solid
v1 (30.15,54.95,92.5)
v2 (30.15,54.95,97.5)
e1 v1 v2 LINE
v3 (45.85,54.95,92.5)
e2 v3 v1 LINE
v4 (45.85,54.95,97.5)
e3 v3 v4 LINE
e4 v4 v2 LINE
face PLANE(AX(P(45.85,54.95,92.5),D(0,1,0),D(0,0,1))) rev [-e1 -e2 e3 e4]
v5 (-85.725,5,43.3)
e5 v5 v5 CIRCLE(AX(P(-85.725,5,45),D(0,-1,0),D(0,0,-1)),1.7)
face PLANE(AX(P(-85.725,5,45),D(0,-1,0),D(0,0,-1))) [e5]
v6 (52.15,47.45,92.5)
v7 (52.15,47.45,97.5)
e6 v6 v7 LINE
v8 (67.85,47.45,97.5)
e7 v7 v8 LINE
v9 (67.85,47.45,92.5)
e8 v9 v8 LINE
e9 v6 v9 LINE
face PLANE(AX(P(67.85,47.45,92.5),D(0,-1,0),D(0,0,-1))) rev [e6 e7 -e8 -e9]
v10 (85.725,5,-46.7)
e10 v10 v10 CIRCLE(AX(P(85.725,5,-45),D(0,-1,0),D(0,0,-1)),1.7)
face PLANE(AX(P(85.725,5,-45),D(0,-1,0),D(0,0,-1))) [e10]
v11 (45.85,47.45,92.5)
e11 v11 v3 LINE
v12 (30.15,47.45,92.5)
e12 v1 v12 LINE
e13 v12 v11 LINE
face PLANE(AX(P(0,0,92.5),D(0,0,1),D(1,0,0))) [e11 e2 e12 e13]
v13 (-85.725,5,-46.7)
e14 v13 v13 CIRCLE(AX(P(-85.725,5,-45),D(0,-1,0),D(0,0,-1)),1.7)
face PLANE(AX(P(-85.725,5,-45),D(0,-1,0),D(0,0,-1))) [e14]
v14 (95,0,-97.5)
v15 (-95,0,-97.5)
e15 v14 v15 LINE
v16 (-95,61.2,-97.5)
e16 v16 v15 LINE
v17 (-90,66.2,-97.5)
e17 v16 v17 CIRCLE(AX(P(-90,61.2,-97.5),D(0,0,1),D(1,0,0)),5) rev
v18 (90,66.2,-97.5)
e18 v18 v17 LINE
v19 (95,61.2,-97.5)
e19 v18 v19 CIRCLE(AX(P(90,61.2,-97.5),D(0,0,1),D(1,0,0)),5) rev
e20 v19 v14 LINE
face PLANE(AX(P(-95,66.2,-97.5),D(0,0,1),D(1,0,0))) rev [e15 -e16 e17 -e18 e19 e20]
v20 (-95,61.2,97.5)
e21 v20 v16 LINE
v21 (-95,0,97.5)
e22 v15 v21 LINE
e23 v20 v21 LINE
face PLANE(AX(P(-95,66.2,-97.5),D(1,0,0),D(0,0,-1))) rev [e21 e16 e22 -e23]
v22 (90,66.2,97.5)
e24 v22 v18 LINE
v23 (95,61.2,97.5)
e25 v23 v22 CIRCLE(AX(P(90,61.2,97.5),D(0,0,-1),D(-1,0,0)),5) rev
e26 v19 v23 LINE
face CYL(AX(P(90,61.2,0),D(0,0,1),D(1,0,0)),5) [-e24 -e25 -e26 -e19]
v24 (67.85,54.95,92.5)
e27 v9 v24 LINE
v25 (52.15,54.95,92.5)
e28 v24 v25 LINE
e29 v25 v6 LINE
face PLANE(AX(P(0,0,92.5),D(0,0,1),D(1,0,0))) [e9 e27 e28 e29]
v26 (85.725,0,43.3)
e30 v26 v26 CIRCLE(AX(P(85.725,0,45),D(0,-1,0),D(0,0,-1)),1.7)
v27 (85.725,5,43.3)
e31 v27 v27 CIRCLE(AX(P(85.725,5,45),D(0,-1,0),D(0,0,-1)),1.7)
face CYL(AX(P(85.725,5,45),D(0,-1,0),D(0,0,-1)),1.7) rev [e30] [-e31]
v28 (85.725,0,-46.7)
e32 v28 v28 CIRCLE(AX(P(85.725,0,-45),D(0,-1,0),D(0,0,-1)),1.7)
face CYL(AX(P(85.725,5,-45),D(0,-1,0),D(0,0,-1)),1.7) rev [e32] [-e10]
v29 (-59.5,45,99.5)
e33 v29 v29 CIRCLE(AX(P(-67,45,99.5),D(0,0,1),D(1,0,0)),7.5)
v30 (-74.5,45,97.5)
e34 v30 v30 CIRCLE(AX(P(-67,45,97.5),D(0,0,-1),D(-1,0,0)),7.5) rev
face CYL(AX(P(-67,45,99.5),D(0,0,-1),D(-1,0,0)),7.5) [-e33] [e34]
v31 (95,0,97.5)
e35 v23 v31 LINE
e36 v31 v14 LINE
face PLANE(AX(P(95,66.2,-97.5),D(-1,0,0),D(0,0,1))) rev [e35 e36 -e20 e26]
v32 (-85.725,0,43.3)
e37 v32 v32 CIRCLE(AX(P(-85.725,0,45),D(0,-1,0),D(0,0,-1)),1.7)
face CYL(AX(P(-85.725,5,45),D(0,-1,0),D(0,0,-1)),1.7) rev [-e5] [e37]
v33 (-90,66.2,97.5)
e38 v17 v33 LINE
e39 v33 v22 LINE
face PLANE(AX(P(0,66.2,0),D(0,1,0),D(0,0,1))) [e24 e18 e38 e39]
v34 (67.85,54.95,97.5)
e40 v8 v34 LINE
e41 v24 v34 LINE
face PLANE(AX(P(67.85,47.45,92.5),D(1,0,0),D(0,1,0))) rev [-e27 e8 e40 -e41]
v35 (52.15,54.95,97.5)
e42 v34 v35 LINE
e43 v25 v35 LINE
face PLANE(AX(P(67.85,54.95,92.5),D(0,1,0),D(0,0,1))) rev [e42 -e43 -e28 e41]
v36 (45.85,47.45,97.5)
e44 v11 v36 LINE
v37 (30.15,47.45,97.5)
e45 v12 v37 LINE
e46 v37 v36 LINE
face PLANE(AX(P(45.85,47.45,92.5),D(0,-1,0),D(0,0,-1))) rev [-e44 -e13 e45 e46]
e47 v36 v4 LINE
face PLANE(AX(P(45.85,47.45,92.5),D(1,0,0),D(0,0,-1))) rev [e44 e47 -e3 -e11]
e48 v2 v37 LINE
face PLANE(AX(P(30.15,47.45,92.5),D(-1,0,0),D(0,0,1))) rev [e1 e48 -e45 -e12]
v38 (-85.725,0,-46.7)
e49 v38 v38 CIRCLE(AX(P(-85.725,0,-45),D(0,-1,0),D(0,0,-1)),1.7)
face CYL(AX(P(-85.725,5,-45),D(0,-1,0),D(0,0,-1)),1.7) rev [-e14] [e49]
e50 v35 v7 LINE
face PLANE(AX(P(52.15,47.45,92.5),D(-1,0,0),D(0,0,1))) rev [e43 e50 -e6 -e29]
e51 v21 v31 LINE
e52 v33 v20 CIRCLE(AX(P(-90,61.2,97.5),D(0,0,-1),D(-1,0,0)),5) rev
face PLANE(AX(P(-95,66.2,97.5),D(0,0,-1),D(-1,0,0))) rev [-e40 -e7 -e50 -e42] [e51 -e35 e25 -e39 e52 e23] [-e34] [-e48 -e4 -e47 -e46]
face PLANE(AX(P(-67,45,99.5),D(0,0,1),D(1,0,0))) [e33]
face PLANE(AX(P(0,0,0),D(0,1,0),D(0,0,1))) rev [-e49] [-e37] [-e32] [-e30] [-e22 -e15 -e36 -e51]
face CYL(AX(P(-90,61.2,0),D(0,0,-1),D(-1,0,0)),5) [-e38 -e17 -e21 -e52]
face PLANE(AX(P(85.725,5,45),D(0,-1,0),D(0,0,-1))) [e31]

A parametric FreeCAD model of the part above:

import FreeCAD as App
import Part
import Sketcher
from FreeCAD import Vector
Q = App.Units.Quantity


def edges_at(feature, points):
    """Names of the edges that pass closest to the given points."""
    edges = feature.Shape.Edges
    near = lambda p: min(range(len(edges)), key=lambda i: edges[i].distToShape(Part.Vertex(*p))[0])
    return sorted({f"Edge{near(p) + 1}" for p in points})

doc = App.newDocument("Part")
body = doc.addObject("PartDesign::Body", "Body")

# Sketch on XZ plane
sketch1 = body.newObject("Sketcher::SketchObject", "Sketch")
sketch1.AttachmentSupport = (doc.getObject("XZ_Plane"), [""])
sketch1.MapMode = "FlatFace"
sketch1.addGeometry([
    Part.LineSegment(Vector(-95, -97.5, 0), Vector(-95, 97.5, 0)),
    Part.LineSegment(Vector(-95, 97.5, 0), Vector(95, 97.5, 0)),
    Part.LineSegment(Vector(95, 97.5, 0), Vector(95, -97.5, 0)),
    Part.LineSegment(Vector(95, -97.5, 0), Vector(-95, -97.5, 0)),
], False)
sketch1.addConstraint([
    Sketcher.Constraint("Coincident", 0, 2, 1, 1),
    Sketcher.Constraint("Coincident", 1, 2, 2, 1),
    Sketcher.Constraint("Coincident", 2, 2, 3, 1),
    Sketcher.Constraint("Coincident", 3, 2, 0, 1),
    Sketcher.Constraint("Vertical", 0),
    Sketcher.Constraint("Horizontal", 1),
    Sketcher.Constraint("Vertical", 2),
    Sketcher.Constraint("Horizontal", 3),
    Sketcher.Constraint("Symmetric", 0, 2, 2, 2, -1, 1),
    Sketcher.Constraint("DistanceX", 1, 1, 1, 2, Q("190 mm")),
    Sketcher.Constraint("DistanceY", 0, 1, 0, 2, Q("195 mm")),
])
pad1 = body.newObject("PartDesign::Pad", "Pad")
pad1.Profile = sketch1
pad1.Length = 66.2
pad1.Reversed = True
doc.recompute()

fillet = body.newObject("PartDesign::Fillet", "Fillet")
fillet.Base = (pad1, edges_at(pad1, [(-95, 66.2, 0), (95, 66.2, 0)]))
fillet.Radius = 5

# Sketch on XZ plane
sketch2 = body.newObject("Sketcher::SketchObject", "Sketch001")
sketch2.AttachmentSupport = (doc.getObject("XZ_Plane"), [""])
sketch2.MapMode = "FlatFace"
sketch2.addGeometry([
    Part.Circle(Vector(-85.725, 45, 0), Vector(0, 0, 1), 1.7),
    Part.Circle(Vector(85.725, 45, 0), Vector(0, 0, 1), 1.7),
    Part.Circle(Vector(85.725, -45, 0), Vector(0, 0, 1), 1.7),
    Part.Circle(Vector(-85.725, -45, 0), Vector(0, 0, 1), 1.7),
], False)
sketch2.addConstraint([
    Sketcher.Constraint("Equal", 0, 1),
    Sketcher.Constraint("Equal", 1, 2),
    Sketcher.Constraint("Equal", 2, 3),
    Sketcher.Constraint("Symmetric", 0, 3, 2, 3, -1, 1),
    Sketcher.Constraint("Symmetric", 1, 3, 3, 3, -1, 1),
    Sketcher.Constraint("Symmetric", 0, 3, 1, 3, -2),
    Sketcher.Constraint("Diameter", 0, Q("3.4 mm")),
    Sketcher.Constraint("DistanceY", -1, 1, 0, 3, Q("45 mm")),
    Sketcher.Constraint("DistanceX", 0, 3, 1, 3, Q("171.45 mm")),
])
pocket1 = body.newObject("PartDesign::Pocket", "Pocket")
pocket1.Profile = sketch2
pocket1.Length = 5

# Sketch on XY plane
sketch3 = body.newObject("Sketcher::SketchObject", "Sketch002")
sketch3.AttachmentSupport = (doc.getObject("XY_Plane"), [""])
sketch3.MapMode = "FlatFace"
sketch3.AttachmentOffset = App.Placement(Vector(0, 0, 97.5), App.Rotation())
sketch3.addGeometry(Part.Circle(Vector(-67, 45, 0), Vector(0, 0, 1), 7.5), False)
sketch3.addConstraint([
    Sketcher.Constraint("Diameter", 0, Q("15 mm")),
    Sketcher.Constraint("DistanceX", 0, 3, -1, 1, Q("67 mm")),
    Sketcher.Constraint("DistanceY", -1, 1, 0, 3, Q("45 mm")),
])
pad2 = body.newObject("PartDesign::Pad", "Pad001")
pad2.Profile = sketch3
pad2.Length = 2

# Sketch on XY plane
sketch4 = body.newObject("Sketcher::SketchObject", "Sketch003")
sketch4.AttachmentSupport = (doc.getObject("XY_Plane"), [""])
sketch4.MapMode = "FlatFace"
sketch4.AttachmentOffset = App.Placement(Vector(0, 0, 97.5), App.Rotation())
sketch4.addGeometry([
    Part.LineSegment(Vector(30.15, 54.95, 0), Vector(30.15, 47.45, 0)),  # 0
    Part.LineSegment(Vector(30.15, 47.45, 0), Vector(45.85, 47.45, 0)),  # 1
    Part.LineSegment(Vector(45.85, 47.45, 0), Vector(45.85, 54.95, 0)),  # 2
    Part.LineSegment(Vector(45.85, 54.95, 0), Vector(30.15, 54.95, 0)),  # 3
    Part.LineSegment(Vector(52.15, 54.95, 0), Vector(52.15, 47.45, 0)),  # 4
    Part.LineSegment(Vector(52.15, 47.45, 0), Vector(67.85, 47.45, 0)),  # 5
    Part.LineSegment(Vector(67.85, 47.45, 0), Vector(67.85, 54.95, 0)),  # 6
    Part.LineSegment(Vector(67.85, 54.95, 0), Vector(52.15, 54.95, 0)),  # 7
], False)
sketch4.addConstraint([
    Sketcher.Constraint("Coincident", 0, 2, 1, 1),
    Sketcher.Constraint("Coincident", 1, 2, 2, 1),
    Sketcher.Constraint("Coincident", 2, 2, 3, 1),
    Sketcher.Constraint("Coincident", 3, 2, 0, 1),
    Sketcher.Constraint("Coincident", 4, 2, 5, 1),
    Sketcher.Constraint("Coincident", 5, 2, 6, 1),
    Sketcher.Constraint("Coincident", 6, 2, 7, 1),
    Sketcher.Constraint("Coincident", 7, 2, 4, 1),
    Sketcher.Constraint("Vertical", 0),
    Sketcher.Constraint("Horizontal", 1),
    Sketcher.Constraint("Vertical", 2),
    Sketcher.Constraint("Horizontal", 3),
    Sketcher.Constraint("Vertical", 4),
    Sketcher.Constraint("Horizontal", 5),
    Sketcher.Constraint("Vertical", 6),
    Sketcher.Constraint("Horizontal", 7),
    Sketcher.Constraint("Horizontal", 1, 2, 4, 2),
    Sketcher.Constraint("Horizontal", 3, 2, 6, 2),
    Sketcher.Constraint("Equal", 3, 5),
    Sketcher.Constraint("DistanceX", 1, 1, 1, 2, Q("15.7 mm")),
    Sketcher.Constraint("DistanceY", 0, 2, 0, 1, Q("7.5 mm")),
    Sketcher.Constraint("DistanceX", 0, 2, 4, 2, Q("22 mm")),
    Sketcher.Constraint("DistanceX", -1, 1, 0, 2, Q("30.15 mm")),
    Sketcher.Constraint("DistanceY", -1, 1, 0, 2, Q("47.45 mm")),
])
pocket2 = body.newObject("PartDesign::Pocket", "Pocket001")
pocket2.Profile = sketch4
pocket2.Length = 5

doc.recompute()
